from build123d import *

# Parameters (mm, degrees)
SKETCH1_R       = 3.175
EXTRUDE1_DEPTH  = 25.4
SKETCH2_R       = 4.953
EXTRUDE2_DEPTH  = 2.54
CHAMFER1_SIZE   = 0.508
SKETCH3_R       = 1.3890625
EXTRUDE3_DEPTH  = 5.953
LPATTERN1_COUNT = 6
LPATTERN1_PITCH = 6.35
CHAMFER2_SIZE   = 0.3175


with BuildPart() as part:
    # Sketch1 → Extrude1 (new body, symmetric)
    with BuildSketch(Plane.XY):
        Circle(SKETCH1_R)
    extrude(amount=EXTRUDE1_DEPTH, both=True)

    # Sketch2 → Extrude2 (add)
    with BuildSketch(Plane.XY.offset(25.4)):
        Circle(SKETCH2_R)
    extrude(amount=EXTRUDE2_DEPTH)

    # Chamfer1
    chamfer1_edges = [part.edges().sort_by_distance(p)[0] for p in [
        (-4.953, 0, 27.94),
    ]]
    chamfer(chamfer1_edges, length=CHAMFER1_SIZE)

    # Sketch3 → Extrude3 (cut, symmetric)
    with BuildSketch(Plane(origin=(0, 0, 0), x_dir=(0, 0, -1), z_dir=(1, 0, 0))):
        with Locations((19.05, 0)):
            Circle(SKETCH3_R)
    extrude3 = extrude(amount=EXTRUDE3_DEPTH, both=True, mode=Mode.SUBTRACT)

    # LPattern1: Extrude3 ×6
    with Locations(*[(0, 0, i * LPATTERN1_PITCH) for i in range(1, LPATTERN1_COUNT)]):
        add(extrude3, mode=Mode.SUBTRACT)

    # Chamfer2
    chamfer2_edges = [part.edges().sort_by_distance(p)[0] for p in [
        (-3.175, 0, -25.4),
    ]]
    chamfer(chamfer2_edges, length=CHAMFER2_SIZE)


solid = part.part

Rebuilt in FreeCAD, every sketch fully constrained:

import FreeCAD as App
import Part
import Sketcher
Q = App.Units.Quantity


def edges_at(feature, points):
    """Names of the edges that pass closest to the given points."""
    edges = feature.Shape.Edges
    near = lambda p: min(range(len(edges)), key=lambda i: edges[i].distToShape(Part.Vertex(*p))[0])
    return sorted({f"Edge{near(p) + 1}" for p in points})

doc = App.newDocument("Part")
body = doc.addObject("PartDesign::Body", "Body")

# Sketch on XY plane
sketch1 = body.newObject("Sketcher::SketchObject", "Sketch")
sketch1.AttachmentSupport = (doc.getObject("XY_Plane"), [""])
sketch1.MapMode = "FlatFace"
sketch1.addGeometry(Part.Circle(App.Vector(0, 0, 0), App.Vector(0, 0, 1), 3.2), False)
sketch1.addConstraint([
    Sketcher.Constraint("Coincident", 0, 3, -1, 1),
    Sketcher.Constraint("Diameter", 0, Q("0.25 in")),
])
pad1 = body.newObject("PartDesign::Pad", "Pad")
pad1.Profile = sketch1
pad1.Length = Q("2 in")
pad1.Midplane = True

# Sketch on XY plane
sketch2 = body.newObject("Sketcher::SketchObject", "Sketch001")
sketch2.AttachmentSupport = (doc.getObject("XY_Plane"), [""])
sketch2.MapMode = "FlatFace"
sketch2.AttachmentOffset = App.Placement(App.Vector(0, 0, 1 * 25.4), App.Rotation())
sketch2.addGeometry(Part.Circle(App.Vector(0, 0, 0), App.Vector(0, 0, 1), 5), False)
sketch2.addConstraint([
    Sketcher.Constraint("Coincident", 0, 3, -1, 1),
    Sketcher.Constraint("Diameter", 0, Q("0.39 in")),
])
pad2 = body.newObject("PartDesign::Pad", "Pad001")
pad2.Profile = sketch2
pad2.Length = Q("0.1 in")
doc.recompute()

chamfer = body.newObject("PartDesign::Chamfer", "Chamfer")
chamfer.Base = (pad2, edges_at(pad2, [(-4.953, 0, 27.94)]))
chamfer.Size = Q("0.02 in")

# Sketch on YZ plane
sketch3 = body.newObject("Sketcher::SketchObject", "Sketch002")
sketch3.AttachmentSupport = (doc.getObject("YZ_Plane"), [""])
sketch3.MapMode = "FlatFace"
sketch3.addGeometry(Part.Circle(App.Vector(0, -19.1, 0), App.Vector(0, 0, 1), 1.4), False)
sketch3.addConstraint([
    Sketcher.Constraint("PointOnObject", 0, 3, -2),
    Sketcher.Constraint("Diameter", 0, Q("0.109375 in")),
    Sketcher.Constraint("DistanceY", 0, 3, -1, 1, Q("0.75 in")),
])
pocket1 = body.newObject("PartDesign::Pocket", "Pocket")
pocket1.Profile = sketch3
pocket1.Length = 11.906
pocket1.Midplane = True
doc.recompute()

linearpattern = body.newObject("PartDesign::LinearPattern", "LinearPattern")
linearpattern.Originals = [pocket1]
linearpattern.Direction = (doc.getObject("Z_Axis"), [""])
linearpattern.Mode = "offset"
linearpattern.Offset = Q("0.25 in")
linearpattern.Occurrences = 6
body.Tip = linearpattern
doc.recompute()

chamfer2 = body.newObject("PartDesign::Chamfer", "Chamfer001")
chamfer2.Base = (linearpattern, edges_at(linearpattern, [(-3.175, 0, -25.4)]))
chamfer2.Size = Q("0.0125 in")

doc.recompute()
